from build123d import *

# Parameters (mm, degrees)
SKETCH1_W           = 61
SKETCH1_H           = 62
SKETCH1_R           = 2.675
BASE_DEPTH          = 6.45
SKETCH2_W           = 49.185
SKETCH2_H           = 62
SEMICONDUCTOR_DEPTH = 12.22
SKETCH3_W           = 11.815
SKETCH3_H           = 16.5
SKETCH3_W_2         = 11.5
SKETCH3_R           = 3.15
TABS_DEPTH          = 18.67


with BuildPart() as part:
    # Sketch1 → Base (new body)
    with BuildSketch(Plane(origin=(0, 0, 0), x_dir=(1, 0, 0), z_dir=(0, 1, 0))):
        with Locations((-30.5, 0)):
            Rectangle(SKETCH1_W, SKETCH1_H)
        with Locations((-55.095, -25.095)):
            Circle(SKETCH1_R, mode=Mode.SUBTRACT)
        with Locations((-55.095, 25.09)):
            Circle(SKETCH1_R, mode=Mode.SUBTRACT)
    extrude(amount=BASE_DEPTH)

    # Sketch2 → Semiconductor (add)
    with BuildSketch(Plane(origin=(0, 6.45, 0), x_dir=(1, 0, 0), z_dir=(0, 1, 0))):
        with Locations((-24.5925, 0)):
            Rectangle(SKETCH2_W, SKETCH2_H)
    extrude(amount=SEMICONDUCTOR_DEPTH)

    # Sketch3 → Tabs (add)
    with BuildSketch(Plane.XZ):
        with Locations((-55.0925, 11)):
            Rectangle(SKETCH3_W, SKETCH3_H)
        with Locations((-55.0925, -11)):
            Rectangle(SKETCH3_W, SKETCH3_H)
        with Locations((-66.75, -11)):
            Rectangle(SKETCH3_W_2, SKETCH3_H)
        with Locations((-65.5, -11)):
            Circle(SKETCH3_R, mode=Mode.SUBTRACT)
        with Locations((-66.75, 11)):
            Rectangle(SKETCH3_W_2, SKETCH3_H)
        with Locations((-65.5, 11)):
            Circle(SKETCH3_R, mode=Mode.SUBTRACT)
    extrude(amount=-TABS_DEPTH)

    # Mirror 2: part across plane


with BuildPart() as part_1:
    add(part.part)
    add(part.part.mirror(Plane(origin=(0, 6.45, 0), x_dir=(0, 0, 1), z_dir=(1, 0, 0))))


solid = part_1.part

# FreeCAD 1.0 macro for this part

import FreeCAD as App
import Part
import Sketcher

doc = App.newDocument("Part")
body = doc.addObject("PartDesign::Body", "Body")

sketch1 = doc.addObject("Sketcher::SketchObject", "Sketch")
body.addObject(sketch1)
sketch1.AttachmentSupport = (doc.XZ_Plane, [""])
sketch1.MapMode = "FlatFace"
sketch1.addGeometry([
    Part.LineSegment(App.Vector(-61, -31, 0), App.Vector(-61, 31, 0)),
    Part.LineSegment(App.Vector(-61, 31, 0), App.Vector(0, 31, 0)),
    Part.LineSegment(App.Vector(0, 31, 0), App.Vector(0, -31, 0)),
    Part.LineSegment(App.Vector(0, -31, 0), App.Vector(-61, -31, 0)),
    Part.Circle(App.Vector(-55.1, 25.1, 0), App.Vector(0, 0, 1), 2.7),
    Part.Circle(App.Vector(-55.1, -25.1, 0), App.Vector(0, 0, 1), 2.7),
], False)
sketch1.addConstraint([
    Sketcher.Constraint("Coincident", 0, 2, 1, 1),
    Sketcher.Constraint("Coincident", 1, 2, 2, 1),
    Sketcher.Constraint("Coincident", 2, 2, 3, 1),
    Sketcher.Constraint("Coincident", 3, 2, 0, 1),
    Sketcher.Constraint("Vertical", 0),
    Sketcher.Constraint("Horizontal", 1),
    Sketcher.Constraint("Vertical", 2),
    Sketcher.Constraint("Horizontal", 3),
    Sketcher.Constraint("Equal", 4, 5),
    Sketcher.Constraint("Symmetric", 1, 2, 2, 2, -1, 1),
    Sketcher.Constraint("Vertical", 4, 3, 5, 3),
    Sketcher.Constraint("Diameter", 4, 5.35),
    Sketcher.Constraint("DistanceX", 1, 1, 1, 2, 61.0),
    Sketcher.Constraint("DistanceY", 0, 1, 0, 2, 62.0),
    Sketcher.Constraint("DistanceY", 5, 3, -1, 1, 25.09),
    Sketcher.Constraint("DistanceX", 4, 3, -1, 1, 55.095),
    Sketcher.Constraint("DistanceY", -1, 1, 4, 3, 25.095),
])
pad1 = doc.addObject("PartDesign::Pad", "Pad")
body.addObject(pad1)
pad1.Profile = sketch1
pad1.Length = 6.45
pad1.Reversed = True

sketch2 = doc.addObject("Sketcher::SketchObject", "Sketch001")
body.addObject(sketch2)
sketch2.AttachmentSupport = (doc.XZ_Plane, [""])
sketch2.MapMode = "FlatFace"
sketch2.AttachmentOffset = App.Placement(App.Vector(0, 0, -6.45), App.Rotation())
sketch2.addGeometry([
    Part.LineSegment(App.Vector(-49, -31, 0), App.Vector(-49, 31, 0)),
    Part.LineSegment(App.Vector(-49, 31, 0), App.Vector(0, 31, 0)),
    Part.LineSegment(App.Vector(0, 31, 0), App.Vector(0, -31, 0)),
    Part.LineSegment(App.Vector(0, -31, 0), App.Vector(-49, -31, 0)),
], False)
sketch2.addConstraint([
    Sketcher.Constraint("Coincident", 0, 2, 1, 1),
    Sketcher.Constraint("Coincident", 1, 2, 2, 1),
    Sketcher.Constraint("Coincident", 2, 2, 3, 1),
    Sketcher.Constraint("Coincident", 3, 2, 0, 1),
    Sketcher.Constraint("Vertical", 0),
    Sketcher.Constraint("Horizontal", 1),
    Sketcher.Constraint("Vertical", 2),
    Sketcher.Constraint("Horizontal", 3),
    Sketcher.Constraint("Symmetric", 1, 2, 2, 2, -1, 1),
    Sketcher.Constraint("DistanceY", 0, 1, 0, 2, 62.0),
    Sketcher.Constraint("DistanceX", 1, 1, 1, 2, 49.185),
])
pad2 = doc.addObject("PartDesign::Pad", "Pad001")
body.addObject(pad2)
pad2.Profile = sketch2
pad2.Length = 12.22
pad2.Reversed = True

sketch3 = doc.addObject("Sketcher::SketchObject", "Sketch002")
body.addObject(sketch3)
sketch3.AttachmentSupport = (doc.XZ_Plane, [""])
sketch3.MapMode = "FlatFace"
sketch3.addGeometry([
    Part.LineSegment(App.Vector(-49.2, 2.8, 0), App.Vector(-49.2, 19.2, 0)),
    Part.LineSegment(App.Vector(-49.2, 19.2, 0), App.Vector(-72.5, 19.2, 0)),
    Part.LineSegment(App.Vector(-72.5, 19.2, 0), App.Vector(-72.5, 2.8, 0)),
    Part.LineSegment(App.Vector(-72.5, 2.8, 0), App.Vector(-49.2, 2.8, 0)),
    Part.Circle(App.Vector(-65.5, 11, 0), App.Vector(0, 0, 1), 3.1),
    Part.LineSegment(App.Vector(-49.2, -19.2, 0), App.Vector(-49.2, -2.8, 0)),
    Part.LineSegment(App.Vector(-49.2, -2.8, 0), App.Vector(-72.5, -2.8, 0)),
    Part.LineSegment(App.Vector(-72.5, -2.8, 0), App.Vector(-72.5, -19.2, 0)),
    Part.LineSegment(App.Vector(-72.5, -19.2, 0), App.Vector(-49.2, -19.2, 0)),
    Part.Circle(App.Vector(-65.5, -11, 0), App.Vector(0, 0, 1), 3.1),
], False)
sketch3.addConstraint([
    Sketcher.Constraint("Coincident", 0, 2, 1, 1),
    Sketcher.Constraint("Coincident", 1, 2, 2, 1),
    Sketcher.Constraint("Coincident", 2, 2, 3, 1),
    Sketcher.Constraint("Coincident", 3, 2, 0, 1),
    Sketcher.Constraint("Coincident", 5, 2, 6, 1),
    Sketcher.Constraint("Coincident", 6, 2, 7, 1),
    Sketcher.Constraint("Coincident", 7, 2, 8, 1),
    Sketcher.Constraint("Coincident", 8, 2, 5, 1),
    Sketcher.Constraint("Vertical", 0),
    Sketcher.Constraint("Horizontal", 1),
    Sketcher.Constraint("Vertical", 2),
    Sketcher.Constraint("Horizontal", 3),
    Sketcher.Constraint("Vertical", 5),
    Sketcher.Constraint("Horizontal", 6),
    Sketcher.Constraint("Vertical", 7),
    Sketcher.Constraint("Horizontal", 8),
    Sketcher.Constraint("Equal", 4, 9),
    Sketcher.Constraint("Symmetric", 4, 3, 9, 3, -1),
    Sketcher.Constraint("Symmetric", 3, 2, 5, 2, -1),
    Sketcher.Constraint("Symmetric", 1, 2, 7, 2, -1),
    Sketcher.Constraint("Diameter", 4, 6.3),
    Sketcher.Constraint("DistanceY", 0, 1, 0, 2, 16.5),
    Sketcher.Constraint("DistanceY", -1, 1, 4, 3, 11.0),
    Sketcher.Constraint("DistanceX", 1, 2, 4, 3, 7.0),
    Sketcher.Constraint("DistanceY", 5, 2, 0, 2, 22.0),
    Sketcher.Constraint("DistanceX", 4, 3, -1, 1, 65.5),
    Sketcher.Constraint("DistanceX", 1, 2, 1, 1, 23.315),
])
pad3 = doc.addObject("PartDesign::Pad", "Pad002")
body.addObject(pad3)
pad3.Profile = sketch3
pad3.Length = 18.67
pad3.Reversed = True
body2 = doc.addObject("PartDesign::Body", "Body001")
doc.recompute()

body2.BaseFeature = body
doc.recompute()

mirroring = doc.addObject("Part::Mirroring", "Mirroring")
mirroring.Source = body
mirroring.Base = App.Vector(0, 6.45, 0)
mirroring.Normal = App.Vector(1, 0, 0)
body3 = doc.addObject("PartDesign::Body", "Body002")
body3.BaseFeature = mirroring
boolean = doc.addObject("PartDesign::Boolean", "Boolean")
body2.addObject(boolean)
boolean.Type = "Fuse"
boolean.addObjects([body3])
doc.recompute()
mirroring.Visibility = False

doc.recompute()
